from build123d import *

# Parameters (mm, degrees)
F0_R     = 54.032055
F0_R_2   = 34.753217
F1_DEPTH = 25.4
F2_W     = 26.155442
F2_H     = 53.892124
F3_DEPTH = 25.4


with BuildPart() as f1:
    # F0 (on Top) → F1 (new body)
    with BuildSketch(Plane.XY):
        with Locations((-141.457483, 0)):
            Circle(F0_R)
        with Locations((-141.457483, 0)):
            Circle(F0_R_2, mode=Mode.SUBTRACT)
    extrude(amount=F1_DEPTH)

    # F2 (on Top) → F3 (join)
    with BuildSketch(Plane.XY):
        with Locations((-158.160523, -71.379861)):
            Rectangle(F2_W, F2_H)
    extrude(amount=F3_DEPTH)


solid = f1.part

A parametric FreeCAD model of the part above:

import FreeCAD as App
import Part
import Sketcher

V = App.Vector
Q = App.Units.Quantity


def add_polygon(sketch, points):
    """Adds a closed chain of lines whose ends are joined by coincident constraints."""
    first, n = sketch.GeometryCount, len(points)
    for a, b in zip(points, points[1:] + points[:1]):
        sketch.addGeometry(Part.LineSegment(App.Vector(*a, 0), App.Vector(*b, 0)), False)
    for i in range(n):
        sketch.addConstraint(Sketcher.Constraint("Coincident", first + i, 2, first + (i + 1) % n, 1))

doc = App.newDocument("Part")
body = doc.addObject("PartDesign::Body", "Body")

# Sketch on XY plane
sketch1 = body.newObject("Sketcher::SketchObject", "Sketch")
sketch1.AttachmentSupport = (doc.getObject("XY_Plane"), [""])
sketch1.MapMode = "FlatFace"
sketch1.addGeometry(Part.Circle(V(-141, 0, 0), V(0, 0, 1), 54), False)
sketch1.addGeometry(Part.Circle(V(-141, 0, 0), V(0, 0, 1), 35), False)
sketch1.addConstraint(Sketcher.Constraint("Coincident", 1, 3, 0, 3))
sketch1.addConstraint(Sketcher.Constraint("PointOnObject", 0, 3, -1))
sketch1.addConstraint(Sketcher.Constraint("Diameter", 0, Q("108.06411 mm")))
sketch1.addConstraint(Sketcher.Constraint("Diameter", 1, Q("69.506434 mm")))
sketch1.addConstraint(Sketcher.Constraint("DistanceX", 0, 3, -1, 1, Q("141.457483 mm")))
pad1 = body.newObject("PartDesign::Pad", "Pad")
pad1.Profile = sketch1
pad1.Length = Q("1 in")

# Sketch on XY plane
sketch2 = body.newObject("Sketcher::SketchObject", "Sketch001")
sketch2.AttachmentSupport = (doc.getObject("XY_Plane"), [""])
sketch2.MapMode = "FlatFace"
add_polygon(sketch2, [(-171, -44), (-171, -98), (-145, -98), (-145, -44)])  # lines 0-3
sketch2.addConstraint(Sketcher.Constraint("Vertical", 0))
sketch2.addConstraint(Sketcher.Constraint("Horizontal", 1))
sketch2.addConstraint(Sketcher.Constraint("Vertical", 2))
sketch2.addConstraint(Sketcher.Constraint("Horizontal", 3))
sketch2.addConstraint(Sketcher.Constraint("DistanceX", 1, 2, -1, 1, Q("145.082802 mm")))
sketch2.addConstraint(Sketcher.Constraint("DistanceY", 2, 2, -1, 1, Q("44.433799 mm")))
sketch2.addConstraint(Sketcher.Constraint("DistanceX", 1, 1, 1, 2, Q("26.155442 mm")))
sketch2.addConstraint(Sketcher.Constraint("DistanceY", 0, 2, 0, 1, Q("53.892124 mm")))
pad2 = body.newObject("PartDesign::Pad", "Pad001")
pad2.Profile = sketch2
pad2.Length = Q("1 in")

doc.recompute()
